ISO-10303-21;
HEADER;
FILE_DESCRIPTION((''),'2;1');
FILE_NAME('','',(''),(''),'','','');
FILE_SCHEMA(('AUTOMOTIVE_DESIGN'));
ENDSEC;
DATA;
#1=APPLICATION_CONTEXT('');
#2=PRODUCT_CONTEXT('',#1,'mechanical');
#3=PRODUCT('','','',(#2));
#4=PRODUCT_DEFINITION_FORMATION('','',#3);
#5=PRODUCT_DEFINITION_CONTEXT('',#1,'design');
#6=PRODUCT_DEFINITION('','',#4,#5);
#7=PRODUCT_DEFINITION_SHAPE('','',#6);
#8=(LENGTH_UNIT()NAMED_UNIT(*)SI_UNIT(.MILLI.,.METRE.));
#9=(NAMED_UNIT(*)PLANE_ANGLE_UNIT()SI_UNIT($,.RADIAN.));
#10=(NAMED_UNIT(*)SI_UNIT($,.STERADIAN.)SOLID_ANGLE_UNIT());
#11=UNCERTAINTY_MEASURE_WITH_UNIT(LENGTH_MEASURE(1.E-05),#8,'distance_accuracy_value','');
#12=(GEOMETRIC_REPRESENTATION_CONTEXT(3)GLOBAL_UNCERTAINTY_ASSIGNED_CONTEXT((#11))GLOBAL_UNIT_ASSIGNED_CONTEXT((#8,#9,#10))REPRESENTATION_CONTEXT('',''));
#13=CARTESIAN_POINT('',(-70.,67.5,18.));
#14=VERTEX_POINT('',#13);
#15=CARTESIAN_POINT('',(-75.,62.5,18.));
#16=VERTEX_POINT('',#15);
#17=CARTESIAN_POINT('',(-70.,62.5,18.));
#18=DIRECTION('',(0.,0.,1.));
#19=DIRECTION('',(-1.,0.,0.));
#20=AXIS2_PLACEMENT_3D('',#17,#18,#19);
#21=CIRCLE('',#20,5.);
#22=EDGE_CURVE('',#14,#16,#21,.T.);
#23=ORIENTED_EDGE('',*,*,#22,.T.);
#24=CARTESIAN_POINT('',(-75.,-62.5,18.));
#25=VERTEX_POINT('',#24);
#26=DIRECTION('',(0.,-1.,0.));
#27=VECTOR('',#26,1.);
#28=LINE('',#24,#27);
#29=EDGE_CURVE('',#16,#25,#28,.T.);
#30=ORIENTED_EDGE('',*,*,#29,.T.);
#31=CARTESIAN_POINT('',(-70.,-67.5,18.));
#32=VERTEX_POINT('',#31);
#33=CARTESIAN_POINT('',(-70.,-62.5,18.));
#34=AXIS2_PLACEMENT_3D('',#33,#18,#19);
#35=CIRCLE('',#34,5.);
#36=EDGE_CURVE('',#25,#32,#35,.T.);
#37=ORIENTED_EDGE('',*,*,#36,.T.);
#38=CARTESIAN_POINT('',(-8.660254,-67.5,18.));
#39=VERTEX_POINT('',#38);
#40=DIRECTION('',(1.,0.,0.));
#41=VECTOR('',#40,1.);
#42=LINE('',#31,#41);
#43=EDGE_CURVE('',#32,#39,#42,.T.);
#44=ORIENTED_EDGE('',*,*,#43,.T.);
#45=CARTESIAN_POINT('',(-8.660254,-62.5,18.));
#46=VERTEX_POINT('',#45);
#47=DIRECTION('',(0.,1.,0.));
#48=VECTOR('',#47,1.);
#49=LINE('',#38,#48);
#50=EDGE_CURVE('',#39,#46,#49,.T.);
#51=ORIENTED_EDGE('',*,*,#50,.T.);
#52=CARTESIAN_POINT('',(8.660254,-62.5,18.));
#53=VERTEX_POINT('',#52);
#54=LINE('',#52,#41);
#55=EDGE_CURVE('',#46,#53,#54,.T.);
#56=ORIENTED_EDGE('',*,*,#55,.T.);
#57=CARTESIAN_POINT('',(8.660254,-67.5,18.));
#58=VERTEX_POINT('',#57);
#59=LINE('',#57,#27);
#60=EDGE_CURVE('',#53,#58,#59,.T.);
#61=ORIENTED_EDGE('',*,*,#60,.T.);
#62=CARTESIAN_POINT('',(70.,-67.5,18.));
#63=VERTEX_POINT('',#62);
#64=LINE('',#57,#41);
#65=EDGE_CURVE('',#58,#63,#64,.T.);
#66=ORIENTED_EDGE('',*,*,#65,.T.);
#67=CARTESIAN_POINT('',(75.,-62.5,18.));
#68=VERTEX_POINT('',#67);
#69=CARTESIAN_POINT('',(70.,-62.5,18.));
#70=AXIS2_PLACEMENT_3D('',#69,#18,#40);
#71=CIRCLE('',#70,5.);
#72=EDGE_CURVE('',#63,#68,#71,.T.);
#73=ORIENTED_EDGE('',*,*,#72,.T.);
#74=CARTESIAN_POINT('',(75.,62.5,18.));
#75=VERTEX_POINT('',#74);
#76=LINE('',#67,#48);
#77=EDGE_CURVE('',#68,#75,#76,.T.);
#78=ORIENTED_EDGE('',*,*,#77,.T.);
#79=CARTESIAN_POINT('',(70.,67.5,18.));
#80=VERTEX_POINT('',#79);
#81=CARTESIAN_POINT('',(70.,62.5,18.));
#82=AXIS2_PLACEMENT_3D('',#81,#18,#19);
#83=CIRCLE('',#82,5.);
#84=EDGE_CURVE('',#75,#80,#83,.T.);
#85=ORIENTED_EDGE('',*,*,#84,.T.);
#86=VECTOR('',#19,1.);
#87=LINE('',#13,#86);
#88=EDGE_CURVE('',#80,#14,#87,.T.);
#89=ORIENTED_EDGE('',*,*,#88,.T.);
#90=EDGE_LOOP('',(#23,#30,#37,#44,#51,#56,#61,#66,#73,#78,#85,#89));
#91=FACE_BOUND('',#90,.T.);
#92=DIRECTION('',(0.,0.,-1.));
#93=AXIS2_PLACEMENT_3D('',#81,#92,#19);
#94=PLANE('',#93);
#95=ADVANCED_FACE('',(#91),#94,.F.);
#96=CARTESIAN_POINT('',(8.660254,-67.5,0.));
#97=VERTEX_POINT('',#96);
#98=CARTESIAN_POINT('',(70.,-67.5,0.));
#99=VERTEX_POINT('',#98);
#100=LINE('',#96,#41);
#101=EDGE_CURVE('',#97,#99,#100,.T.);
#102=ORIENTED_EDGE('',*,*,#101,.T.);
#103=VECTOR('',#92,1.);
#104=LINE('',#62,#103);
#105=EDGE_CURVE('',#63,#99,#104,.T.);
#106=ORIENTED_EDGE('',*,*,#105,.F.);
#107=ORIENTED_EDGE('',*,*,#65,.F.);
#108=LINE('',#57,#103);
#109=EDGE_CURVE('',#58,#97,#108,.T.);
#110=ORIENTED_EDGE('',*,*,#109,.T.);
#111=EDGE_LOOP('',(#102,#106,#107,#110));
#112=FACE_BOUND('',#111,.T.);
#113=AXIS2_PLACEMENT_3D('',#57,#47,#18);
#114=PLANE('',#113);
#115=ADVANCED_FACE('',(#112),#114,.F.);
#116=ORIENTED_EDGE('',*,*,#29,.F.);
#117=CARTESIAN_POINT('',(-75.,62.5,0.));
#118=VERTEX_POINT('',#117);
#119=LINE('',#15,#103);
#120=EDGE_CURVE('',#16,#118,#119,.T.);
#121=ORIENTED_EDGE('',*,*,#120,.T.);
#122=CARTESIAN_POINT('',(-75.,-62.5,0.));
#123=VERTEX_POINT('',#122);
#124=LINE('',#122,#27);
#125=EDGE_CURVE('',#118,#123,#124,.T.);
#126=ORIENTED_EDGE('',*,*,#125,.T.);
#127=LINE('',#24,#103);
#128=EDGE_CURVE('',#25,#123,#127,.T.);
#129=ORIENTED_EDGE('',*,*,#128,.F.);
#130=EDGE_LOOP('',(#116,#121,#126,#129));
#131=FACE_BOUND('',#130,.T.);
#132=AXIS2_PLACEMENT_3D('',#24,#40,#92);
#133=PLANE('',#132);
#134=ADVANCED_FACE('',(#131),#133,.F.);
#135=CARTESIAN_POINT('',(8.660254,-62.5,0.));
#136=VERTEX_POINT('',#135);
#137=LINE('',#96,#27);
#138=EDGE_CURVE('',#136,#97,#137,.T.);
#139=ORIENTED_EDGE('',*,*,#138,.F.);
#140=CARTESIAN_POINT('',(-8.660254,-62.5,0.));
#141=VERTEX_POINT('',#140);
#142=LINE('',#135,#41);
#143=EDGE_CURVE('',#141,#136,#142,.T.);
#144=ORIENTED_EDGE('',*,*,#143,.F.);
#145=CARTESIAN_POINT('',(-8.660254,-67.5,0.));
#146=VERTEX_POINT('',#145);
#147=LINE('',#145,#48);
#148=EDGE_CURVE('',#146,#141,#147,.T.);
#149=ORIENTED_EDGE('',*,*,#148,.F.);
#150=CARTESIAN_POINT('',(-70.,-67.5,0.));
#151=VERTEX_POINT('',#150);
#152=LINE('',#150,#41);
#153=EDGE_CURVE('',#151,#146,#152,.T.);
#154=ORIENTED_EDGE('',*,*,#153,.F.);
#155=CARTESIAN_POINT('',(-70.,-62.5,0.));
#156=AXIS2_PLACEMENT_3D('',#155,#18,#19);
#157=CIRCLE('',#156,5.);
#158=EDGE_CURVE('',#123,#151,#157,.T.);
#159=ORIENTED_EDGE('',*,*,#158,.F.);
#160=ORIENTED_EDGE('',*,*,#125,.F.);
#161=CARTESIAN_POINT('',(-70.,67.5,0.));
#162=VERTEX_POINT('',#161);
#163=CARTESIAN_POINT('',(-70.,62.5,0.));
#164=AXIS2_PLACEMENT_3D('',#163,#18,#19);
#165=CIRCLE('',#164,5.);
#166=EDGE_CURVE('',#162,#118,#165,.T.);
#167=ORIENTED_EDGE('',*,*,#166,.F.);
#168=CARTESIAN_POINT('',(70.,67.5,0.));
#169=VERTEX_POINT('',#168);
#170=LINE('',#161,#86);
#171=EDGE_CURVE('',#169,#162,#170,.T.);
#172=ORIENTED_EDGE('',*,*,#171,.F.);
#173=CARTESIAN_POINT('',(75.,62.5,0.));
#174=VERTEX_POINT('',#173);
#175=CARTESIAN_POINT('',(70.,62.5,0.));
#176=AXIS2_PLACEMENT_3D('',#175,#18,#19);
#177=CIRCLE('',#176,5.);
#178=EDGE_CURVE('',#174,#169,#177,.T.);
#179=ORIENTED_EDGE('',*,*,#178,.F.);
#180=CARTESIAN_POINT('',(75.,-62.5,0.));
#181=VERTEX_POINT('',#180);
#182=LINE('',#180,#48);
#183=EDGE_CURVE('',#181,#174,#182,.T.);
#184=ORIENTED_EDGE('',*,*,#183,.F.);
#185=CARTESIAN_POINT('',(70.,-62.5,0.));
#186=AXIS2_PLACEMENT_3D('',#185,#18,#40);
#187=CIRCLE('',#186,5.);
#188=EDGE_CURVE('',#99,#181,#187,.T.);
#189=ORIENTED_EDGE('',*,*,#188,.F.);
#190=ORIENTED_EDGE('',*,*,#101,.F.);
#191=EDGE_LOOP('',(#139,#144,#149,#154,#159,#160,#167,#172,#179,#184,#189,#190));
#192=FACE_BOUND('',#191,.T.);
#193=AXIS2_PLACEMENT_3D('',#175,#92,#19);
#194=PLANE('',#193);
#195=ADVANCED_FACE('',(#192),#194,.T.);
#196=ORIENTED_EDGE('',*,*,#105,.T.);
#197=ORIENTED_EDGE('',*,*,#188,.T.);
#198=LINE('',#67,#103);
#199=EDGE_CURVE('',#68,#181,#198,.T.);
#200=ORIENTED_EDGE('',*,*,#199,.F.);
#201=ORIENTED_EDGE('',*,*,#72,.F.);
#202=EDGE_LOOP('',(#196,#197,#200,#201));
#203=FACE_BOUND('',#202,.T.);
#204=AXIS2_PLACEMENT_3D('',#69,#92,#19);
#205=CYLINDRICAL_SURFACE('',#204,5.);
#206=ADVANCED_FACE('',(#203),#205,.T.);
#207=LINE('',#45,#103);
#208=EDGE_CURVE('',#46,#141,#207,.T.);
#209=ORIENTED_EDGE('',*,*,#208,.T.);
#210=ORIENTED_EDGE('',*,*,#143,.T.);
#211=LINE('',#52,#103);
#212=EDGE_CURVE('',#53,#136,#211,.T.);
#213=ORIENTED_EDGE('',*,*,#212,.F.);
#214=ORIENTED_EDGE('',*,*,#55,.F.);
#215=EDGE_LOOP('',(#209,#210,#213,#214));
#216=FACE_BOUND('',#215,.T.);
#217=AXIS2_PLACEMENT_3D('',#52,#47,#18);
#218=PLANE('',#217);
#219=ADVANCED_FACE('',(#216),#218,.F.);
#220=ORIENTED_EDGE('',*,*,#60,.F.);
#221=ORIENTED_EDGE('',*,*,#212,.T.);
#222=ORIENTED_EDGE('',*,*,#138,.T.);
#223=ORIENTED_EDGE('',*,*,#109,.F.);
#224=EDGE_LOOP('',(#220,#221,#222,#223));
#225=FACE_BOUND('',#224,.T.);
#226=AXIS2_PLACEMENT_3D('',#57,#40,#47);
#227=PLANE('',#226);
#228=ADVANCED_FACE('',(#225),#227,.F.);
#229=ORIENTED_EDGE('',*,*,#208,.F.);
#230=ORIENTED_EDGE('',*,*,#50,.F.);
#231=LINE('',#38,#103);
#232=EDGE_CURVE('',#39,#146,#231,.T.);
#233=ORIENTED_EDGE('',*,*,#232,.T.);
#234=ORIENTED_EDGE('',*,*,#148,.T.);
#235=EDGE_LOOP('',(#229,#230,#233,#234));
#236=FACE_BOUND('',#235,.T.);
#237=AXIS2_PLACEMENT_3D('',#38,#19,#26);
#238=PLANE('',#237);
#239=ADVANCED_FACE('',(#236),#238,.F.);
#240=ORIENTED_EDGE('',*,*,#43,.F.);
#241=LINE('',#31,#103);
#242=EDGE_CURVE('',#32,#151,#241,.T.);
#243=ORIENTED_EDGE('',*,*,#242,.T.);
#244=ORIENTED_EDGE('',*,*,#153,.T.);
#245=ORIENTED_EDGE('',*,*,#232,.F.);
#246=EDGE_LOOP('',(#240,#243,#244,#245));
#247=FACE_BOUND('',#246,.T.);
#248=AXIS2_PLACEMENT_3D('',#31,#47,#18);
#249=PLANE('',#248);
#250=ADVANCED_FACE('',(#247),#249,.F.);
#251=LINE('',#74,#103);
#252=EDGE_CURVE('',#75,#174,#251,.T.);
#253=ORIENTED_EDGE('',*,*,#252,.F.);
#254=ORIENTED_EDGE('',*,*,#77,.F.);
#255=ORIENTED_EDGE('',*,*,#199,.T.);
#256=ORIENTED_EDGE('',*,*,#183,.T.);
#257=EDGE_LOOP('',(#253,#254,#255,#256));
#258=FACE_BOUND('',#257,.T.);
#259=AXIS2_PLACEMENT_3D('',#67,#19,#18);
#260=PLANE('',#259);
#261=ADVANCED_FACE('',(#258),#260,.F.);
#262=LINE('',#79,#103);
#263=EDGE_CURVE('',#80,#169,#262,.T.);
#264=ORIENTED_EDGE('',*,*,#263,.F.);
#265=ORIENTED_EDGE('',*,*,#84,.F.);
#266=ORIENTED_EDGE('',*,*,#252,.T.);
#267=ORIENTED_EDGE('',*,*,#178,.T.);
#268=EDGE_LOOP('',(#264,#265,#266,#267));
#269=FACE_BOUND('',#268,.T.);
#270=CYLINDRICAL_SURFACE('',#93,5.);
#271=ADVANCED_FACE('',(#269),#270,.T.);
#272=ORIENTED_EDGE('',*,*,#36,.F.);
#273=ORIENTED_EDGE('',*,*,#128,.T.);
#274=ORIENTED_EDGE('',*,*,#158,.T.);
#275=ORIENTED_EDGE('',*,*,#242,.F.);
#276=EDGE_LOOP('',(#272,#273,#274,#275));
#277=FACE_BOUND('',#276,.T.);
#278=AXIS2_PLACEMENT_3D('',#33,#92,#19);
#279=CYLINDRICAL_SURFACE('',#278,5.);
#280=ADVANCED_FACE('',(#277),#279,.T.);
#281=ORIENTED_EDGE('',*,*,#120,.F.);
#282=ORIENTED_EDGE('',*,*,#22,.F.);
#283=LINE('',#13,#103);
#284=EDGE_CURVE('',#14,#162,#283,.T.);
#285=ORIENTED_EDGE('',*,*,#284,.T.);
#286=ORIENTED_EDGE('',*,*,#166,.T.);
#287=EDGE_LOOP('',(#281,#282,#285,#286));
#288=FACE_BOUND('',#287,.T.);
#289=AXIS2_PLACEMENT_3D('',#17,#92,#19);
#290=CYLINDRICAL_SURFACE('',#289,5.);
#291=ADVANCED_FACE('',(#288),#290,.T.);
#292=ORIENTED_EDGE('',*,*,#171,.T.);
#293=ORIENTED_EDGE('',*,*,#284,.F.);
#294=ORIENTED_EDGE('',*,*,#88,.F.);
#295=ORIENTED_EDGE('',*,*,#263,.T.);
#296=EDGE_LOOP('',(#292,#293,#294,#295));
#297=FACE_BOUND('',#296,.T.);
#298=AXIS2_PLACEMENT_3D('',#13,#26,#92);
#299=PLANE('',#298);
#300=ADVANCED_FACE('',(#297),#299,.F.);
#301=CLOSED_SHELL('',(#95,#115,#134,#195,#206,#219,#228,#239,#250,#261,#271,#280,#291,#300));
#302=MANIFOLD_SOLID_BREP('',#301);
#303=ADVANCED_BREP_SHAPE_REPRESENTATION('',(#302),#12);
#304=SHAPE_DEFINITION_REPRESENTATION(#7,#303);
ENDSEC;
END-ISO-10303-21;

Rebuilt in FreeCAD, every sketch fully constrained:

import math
import FreeCAD as App
import Part
import Sketcher

V = App.Vector

doc = App.newDocument("Part")
body = doc.addObject("PartDesign::Body", "Body")

sketch1 = body.newObject("Sketcher::SketchObject", "Sketch")
sketch1.AttachmentSupport = (doc.getObject("XY_Plane"), [""])
sketch1.MapMode = "FlatFace"
sketch1.addGeometry(Part.LineSegment(V(-70, -68, 0), V(-9, -68, 0)), False)
sketch1.addGeometry(Part.LineSegment(V(-9, -68, 0), V(-9, -62, 0)), False)
sketch1.addGeometry(Part.LineSegment(V(-9, -62, 0), V(9, -62, 0)), False)
sketch1.addGeometry(Part.LineSegment(V(9, -62, 0), V(9, -68, 0)), False)
sketch1.addGeometry(Part.LineSegment(V(9, -68, 0), V(70, -68, 0)), False)
sketch1.addGeometry(Part.ArcOfCircle(Part.Circle(V(70, -62, 0), V(0, 0, 1), 5), math.radians(-90), math.radians(0)), False)
sketch1.addGeometry(Part.LineSegment(V(75, -62, 0), V(75, 62, 0)), False)
sketch1.addGeometry(Part.ArcOfCircle(Part.Circle(V(70, 62, 0), V(0, 0, 1), 5), math.radians(0), math.radians(90)), False)
sketch1.addGeometry(Part.LineSegment(V(70, 68, 0), V(-70, 68, 0)), False)
sketch1.addGeometry(Part.ArcOfCircle(Part.Circle(V(-70, 62, 0), V(0, 0, 1), 5), math.radians(90), math.radians(180)), False)
sketch1.addGeometry(Part.LineSegment(V(-75, 62, 0), V(-75, -62, 0)), False)
sketch1.addGeometry(Part.ArcOfCircle(Part.Circle(V(-70, -62, 0), V(0, 0, 1), 5), math.radians(180), math.radians(270)), False)
sketch1.addConstraint(Sketcher.Constraint("Coincident", 0, 2, 1, 1))
sketch1.addConstraint(Sketcher.Constraint("Coincident", 1, 2, 2, 1))
sketch1.addConstraint(Sketcher.Constraint("Coincident", 2, 2, 3, 1))
sketch1.addConstraint(Sketcher.Constraint("Coincident", 3, 2, 4, 1))
sketch1.addConstraint(Sketcher.Constraint("Tangent", 4, 2, 5, 1))
sketch1.addConstraint(Sketcher.Constraint("Tangent", 5, 2, 6, 1))
sketch1.addConstraint(Sketcher.Constraint("Tangent", 6, 2, 7, 1))
sketch1.addConstraint(Sketcher.Constraint("Tangent", 7, 2, 8, 1))
sketch1.addConstraint(Sketcher.Constraint("Tangent", 8, 2, 9, 1))
sketch1.addConstraint(Sketcher.Constraint("Tangent", 9, 2, 10, 1))
sketch1.addConstraint(Sketcher.Constraint("Tangent", 10, 2, 11, 1))
sketch1.addConstraint(Sketcher.Constraint("Tangent", 11, 2, 0, 1))
sketch1.addConstraint(Sketcher.Constraint("Horizontal", 0))
sketch1.addConstraint(Sketcher.Constraint("Vertical", 1))
sketch1.addConstraint(Sketcher.Constraint("Horizontal", 2))
sketch1.addConstraint(Sketcher.Constraint("Vertical", 3))
sketch1.addConstraint(Sketcher.Constraint("Horizontal", 4))
sketch1.addConstraint(Sketcher.Constraint("Vertical", 6))
sketch1.addConstraint(Sketcher.Constraint("Horizontal", 8))
sketch1.addConstraint(Sketcher.Constraint("Vertical", 10))
sketch1.addConstraint(Sketcher.Constraint("Equal", 5, 7))
sketch1.addConstraint(Sketcher.Constraint("Equal", 7, 9))
sketch1.addConstraint(Sketcher.Constraint("Equal", 9, 11))
sketch1.addConstraint(Sketcher.Constraint("Symmetric", 5, 3, 9, 3, -1, 1))
sketch1.addConstraint(Sketcher.Constraint("Symmetric", 0, 2, 3, 2, -2))
sketch1.addConstraint(Sketcher.Constraint("Horizontal", 11, 3, 1, 2))
sketch1.addConstraint(Sketcher.Constraint("Radius", 5, 5.0))
sketch1.addConstraint(Sketcher.Constraint("DistanceX", 8, 2, 8, 1, 140.0))
sketch1.addConstraint(Sketcher.Constraint("DistanceY", 6, 1, 6, 2, 125.0))
sketch1.addConstraint(Sketcher.Constraint("DistanceX", 2, 1, 2, 2, 17.320508))
pad1 = body.newObject("PartDesign::Pad", "Pad")
pad1.Profile = sketch1
pad1.Length = 18

doc.recompute()
